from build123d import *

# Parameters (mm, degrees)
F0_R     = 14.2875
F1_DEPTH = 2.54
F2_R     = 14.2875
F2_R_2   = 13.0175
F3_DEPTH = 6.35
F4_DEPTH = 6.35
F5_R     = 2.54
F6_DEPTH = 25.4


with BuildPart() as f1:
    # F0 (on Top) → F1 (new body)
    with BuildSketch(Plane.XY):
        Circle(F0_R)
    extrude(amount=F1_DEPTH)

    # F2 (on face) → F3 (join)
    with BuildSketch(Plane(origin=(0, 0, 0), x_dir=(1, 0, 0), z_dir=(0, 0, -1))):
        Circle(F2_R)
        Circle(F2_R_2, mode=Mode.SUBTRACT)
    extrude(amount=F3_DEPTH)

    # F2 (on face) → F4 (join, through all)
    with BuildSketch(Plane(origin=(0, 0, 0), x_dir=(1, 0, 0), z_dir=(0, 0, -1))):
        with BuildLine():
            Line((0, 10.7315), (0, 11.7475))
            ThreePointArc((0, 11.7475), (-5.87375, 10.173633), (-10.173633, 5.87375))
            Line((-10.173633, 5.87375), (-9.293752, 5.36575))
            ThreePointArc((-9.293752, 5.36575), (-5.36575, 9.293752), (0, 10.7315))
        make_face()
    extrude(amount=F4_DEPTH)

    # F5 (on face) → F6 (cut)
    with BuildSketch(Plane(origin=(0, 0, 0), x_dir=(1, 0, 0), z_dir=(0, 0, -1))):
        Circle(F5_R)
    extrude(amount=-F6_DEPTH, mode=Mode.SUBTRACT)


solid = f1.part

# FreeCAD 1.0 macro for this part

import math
import FreeCAD as App
import Part
import Sketcher
Q = App.Units.Quantity

doc = App.newDocument("Part")
body = doc.addObject("PartDesign::Body", "Body")

# Sketch on XY plane
sketch1 = body.newObject("Sketcher::SketchObject", "Sketch")
sketch1.AttachmentSupport = (doc.getObject("XY_Plane"), [""])
sketch1.MapMode = "FlatFace"
sketch1.addGeometry(Part.Circle(App.Vector(0, 0, 0), App.Vector(0, 0, 1), 14), False)
sketch1.addConstraint([
    Sketcher.Constraint("Coincident", 0, 3, -1, 1),
    Sketcher.Constraint("Diameter", 0, Q("1.125 in")),
])
pad1 = body.newObject("PartDesign::Pad", "Pad")
pad1.Profile = sketch1
pad1.Length = Q("0.1 in")

# Sketch on XY plane
sketch2 = body.newObject("Sketcher::SketchObject", "Sketch001")
sketch2.AttachmentSupport = (doc.getObject("XY_Plane"), [""])
sketch2.MapMode = "FlatFace"
sketch2.addGeometry([
    Part.Circle(App.Vector(0, 0, 0), App.Vector(0, 0, 1), 14),
    Part.Circle(App.Vector(0, 0, 0), App.Vector(0, 0, 1), 13),
], False)
sketch2.addConstraint([
    Sketcher.Constraint("Coincident", 0, 3, -1, 1),
    Sketcher.Constraint("Coincident", 1, 3, -1, 1),
    Sketcher.Constraint("Diameter", 0, Q("1.125 in")),
    Sketcher.Constraint("Diameter", 1, Q("1.025 in")),
])
pad2 = body.newObject("PartDesign::Pad", "Pad001")
pad2.Profile = sketch2
pad2.Length = Q("0.25 in")
pad2.Reversed = True

# Sketch on XY plane
sketch3 = body.newObject("Sketcher::SketchObject", "Sketch002")
sketch3.AttachmentSupport = (doc.getObject("XY_Plane"), [""])
sketch3.MapMode = "FlatFace"
sketch3.addGeometry([
    Part.LineSegment(App.Vector(0, -10.7, 0), App.Vector(0, -11.7, 0)),
    Part.ArcOfCircle(Part.Circle(App.Vector(0, 0, 0), App.Vector(0, 0, 1), 11.7), math.radians(-150), math.radians(-90)),
    Part.LineSegment(App.Vector(-10.2, -5.9, 0), App.Vector(-9.3, -5.4, 0)),
    Part.ArcOfCircle(Part.Circle(App.Vector(0, 0, 0), App.Vector(0, 0, 1), 10.7), math.radians(-150), math.radians(-90)),
], False)
sketch3.addConstraint([
    Sketcher.Constraint("Coincident", 0, 2, 1, 2),
    Sketcher.Constraint("Coincident", 1, 1, 2, 1),
    Sketcher.Constraint("Coincident", 2, 2, 3, 1),
    Sketcher.Constraint("Coincident", 3, 2, 0, 1),
    Sketcher.Constraint("Vertical", 0),
    Sketcher.Constraint("Coincident", 1, 3, -1, 1),
    Sketcher.Constraint("Coincident", 3, 3, -1, 1),
    Sketcher.Constraint("PointOnObject", 0, 2, -2),
    Sketcher.Constraint("DistanceY", 0, 2, 0, 1, Q("0.04 in")),
    Sketcher.Constraint("Radius", 1, Q("0.4625 in")),
    Sketcher.Constraint("DistanceY", 1, 1, 2, 2, Q("0.02 in")),
    Sketcher.Constraint("DistanceY", 1, 1, -1, 1, 5.87375),
])
pad3 = body.newObject("PartDesign::Pad", "Pad002")
pad3.Profile = sketch3
pad3.Length = Q("0.25 in")
pad3.Reversed = True

# Sketch on XY plane
sketch4 = body.newObject("Sketcher::SketchObject", "Sketch003")
sketch4.AttachmentSupport = (doc.getObject("XY_Plane"), [""])
sketch4.MapMode = "FlatFace"
sketch4.addGeometry(Part.Circle(App.Vector(0, 0, 0), App.Vector(0, 0, 1), 2.5), False)
sketch4.addConstraint([
    Sketcher.Constraint("Coincident", 0, 3, -1, 1),
    Sketcher.Constraint("Diameter", 0, Q("0.2 in")),
])
pocket1 = body.newObject("PartDesign::Pocket", "Pocket")
pocket1.Profile = sketch4
pocket1.Length = Q("1 in")
pocket1.Reversed = True

doc.recompute()
